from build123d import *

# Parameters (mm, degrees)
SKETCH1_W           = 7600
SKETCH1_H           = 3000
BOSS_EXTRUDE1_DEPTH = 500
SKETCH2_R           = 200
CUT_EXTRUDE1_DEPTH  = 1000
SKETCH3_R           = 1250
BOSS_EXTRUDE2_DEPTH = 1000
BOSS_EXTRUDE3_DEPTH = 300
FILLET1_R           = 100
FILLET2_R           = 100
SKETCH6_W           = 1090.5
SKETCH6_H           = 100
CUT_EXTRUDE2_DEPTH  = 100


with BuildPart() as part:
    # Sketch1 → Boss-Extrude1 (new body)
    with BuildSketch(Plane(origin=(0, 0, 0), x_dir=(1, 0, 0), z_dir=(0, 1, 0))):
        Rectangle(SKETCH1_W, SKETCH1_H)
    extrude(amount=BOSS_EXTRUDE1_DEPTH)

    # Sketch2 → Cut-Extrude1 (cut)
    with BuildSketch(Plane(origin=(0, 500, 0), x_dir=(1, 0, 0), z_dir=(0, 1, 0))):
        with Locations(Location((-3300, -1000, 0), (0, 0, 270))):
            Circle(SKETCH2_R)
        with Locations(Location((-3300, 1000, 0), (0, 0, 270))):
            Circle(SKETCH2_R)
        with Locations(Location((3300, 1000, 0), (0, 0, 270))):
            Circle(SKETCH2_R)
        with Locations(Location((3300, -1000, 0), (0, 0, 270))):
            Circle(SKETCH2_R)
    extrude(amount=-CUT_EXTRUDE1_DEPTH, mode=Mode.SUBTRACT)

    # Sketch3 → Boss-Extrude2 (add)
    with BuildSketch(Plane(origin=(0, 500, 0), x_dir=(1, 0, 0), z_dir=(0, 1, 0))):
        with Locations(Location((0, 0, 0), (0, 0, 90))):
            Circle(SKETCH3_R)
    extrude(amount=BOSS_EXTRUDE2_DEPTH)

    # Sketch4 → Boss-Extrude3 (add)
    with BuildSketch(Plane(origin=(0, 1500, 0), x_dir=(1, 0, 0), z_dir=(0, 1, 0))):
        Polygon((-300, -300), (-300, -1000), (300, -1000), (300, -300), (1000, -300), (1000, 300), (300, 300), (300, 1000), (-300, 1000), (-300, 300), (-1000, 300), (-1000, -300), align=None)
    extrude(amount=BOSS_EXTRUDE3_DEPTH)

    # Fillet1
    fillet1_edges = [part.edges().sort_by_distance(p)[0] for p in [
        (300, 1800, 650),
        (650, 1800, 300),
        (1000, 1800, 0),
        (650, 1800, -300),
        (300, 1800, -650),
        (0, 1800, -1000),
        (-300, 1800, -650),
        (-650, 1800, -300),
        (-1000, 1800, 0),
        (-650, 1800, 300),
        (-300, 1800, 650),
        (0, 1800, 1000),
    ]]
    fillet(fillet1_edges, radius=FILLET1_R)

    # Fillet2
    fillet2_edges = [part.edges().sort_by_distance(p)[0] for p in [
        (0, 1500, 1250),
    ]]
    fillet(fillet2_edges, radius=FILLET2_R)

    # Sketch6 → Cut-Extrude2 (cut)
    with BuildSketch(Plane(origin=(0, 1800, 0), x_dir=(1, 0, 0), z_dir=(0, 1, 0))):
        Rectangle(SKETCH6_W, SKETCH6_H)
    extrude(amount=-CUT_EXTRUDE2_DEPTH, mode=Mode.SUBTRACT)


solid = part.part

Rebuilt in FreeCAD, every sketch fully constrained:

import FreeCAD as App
import Part
import Sketcher

V = App.Vector
Q = App.Units.Quantity


def edges_at(feature, points):
    """Names of the edges that pass closest to the given points."""
    edges = feature.Shape.Edges
    near = lambda p: min(range(len(edges)), key=lambda i: edges[i].distToShape(Part.Vertex(*p))[0])
    return sorted({f"Edge{near(p) + 1}" for p in points})


def add_polygon(sketch, points):
    """Adds a closed chain of lines whose ends are joined by coincident constraints."""
    first, n = sketch.GeometryCount, len(points)
    for a, b in zip(points, points[1:] + points[:1]):
        sketch.addGeometry(Part.LineSegment(App.Vector(*a, 0), App.Vector(*b, 0)), False)
    for i in range(n):
        sketch.addConstraint(Sketcher.Constraint("Coincident", first + i, 2, first + (i + 1) % n, 1))

doc = App.newDocument("Part")
body = doc.addObject("PartDesign::Body", "Body")

sketch1 = body.newObject("Sketcher::SketchObject", "Sketch")
sketch1.AttachmentSupport = (doc.getObject("XZ_Plane"), [""])
sketch1.MapMode = "FlatFace"
add_polygon(sketch1, [(-3800, -1500), (-3800, 1500), (3800, 1500), (3800, -1500)])
sketch1.addConstraint(Sketcher.Constraint("Vertical", 0))
sketch1.addConstraint(Sketcher.Constraint("Horizontal", 1))
sketch1.addConstraint(Sketcher.Constraint("Vertical", 2))
sketch1.addConstraint(Sketcher.Constraint("Horizontal", 3))
sketch1.addConstraint(Sketcher.Constraint("Symmetric", 0, 2, 2, 2, -1, 1))
sketch1.addConstraint(Sketcher.Constraint("DistanceX", 1, 1, 1, 2, Q("7600 mm")))
sketch1.addConstraint(Sketcher.Constraint("DistanceY", 0, 1, 0, 2, Q("3000 mm")))
pad1 = body.newObject("PartDesign::Pad", "Pad")
pad1.Profile = sketch1
pad1.Length = 500
pad1.Reversed = True

sketch2 = body.newObject("Sketcher::SketchObject", "Sketch001")
sketch2.AttachmentSupport = (doc.getObject("XZ_Plane"), [""])
sketch2.MapMode = "FlatFace"
sketch2.AttachmentOffset = App.Placement(V(0, 0, -500), App.Rotation())
sketch2.addGeometry(Part.Circle(V(-3300, 1000, 0), V(0, 0, 1), 200), False)
sketch2.addGeometry(Part.Circle(V(-3300, -1000, 0), V(0, 0, 1), 200), False)
sketch2.addGeometry(Part.Circle(V(3300, -1000, 0), V(0, 0, 1), 200), False)
sketch2.addGeometry(Part.Circle(V(3300, 1000, 0), V(0, 0, 1), 200), False)
sketch2.addConstraint(Sketcher.Constraint("Equal", 0, 1))
sketch2.addConstraint(Sketcher.Constraint("Equal", 1, 2))
sketch2.addConstraint(Sketcher.Constraint("Equal", 2, 3))
sketch2.addConstraint(Sketcher.Constraint("Symmetric", 0, 3, 2, 3, -1, 1))
sketch2.addConstraint(Sketcher.Constraint("Symmetric", 1, 3, 3, 3, -1, 1))
sketch2.addConstraint(Sketcher.Constraint("Symmetric", 1, 3, 2, 3, -2))
sketch2.addConstraint(Sketcher.Constraint("Diameter", 0, Q("400 mm")))
sketch2.addConstraint(Sketcher.Constraint("DistanceX", 0, 3, -1, 1, Q("3300 mm")))
sketch2.addConstraint(Sketcher.Constraint("DistanceY", -1, 1, 0, 3, Q("1000 mm")))
pocket1 = body.newObject("PartDesign::Pocket", "Pocket")
pocket1.Profile = sketch2
pocket1.Length = 1000
pocket1.Reversed = True

sketch3 = body.newObject("Sketcher::SketchObject", "Sketch002")
sketch3.AttachmentSupport = (doc.getObject("XZ_Plane"), [""])
sketch3.MapMode = "FlatFace"
sketch3.AttachmentOffset = App.Placement(V(0, 0, -500), App.Rotation())
sketch3.addGeometry(Part.Circle(V(0, 0, 0), V(0, 0, 1), 1250), False)
sketch3.addConstraint(Sketcher.Constraint("Coincident", 0, 3, -1, 1))
sketch3.addConstraint(Sketcher.Constraint("Diameter", 0, Q("2500 mm")))
pad2 = body.newObject("PartDesign::Pad", "Pad001")
pad2.Profile = sketch3
pad2.Length = 1000
pad2.Reversed = True

sketch4 = body.newObject("Sketcher::SketchObject", "Sketch003")
sketch4.AttachmentSupport = (doc.getObject("XZ_Plane"), [""])
sketch4.MapMode = "FlatFace"
sketch4.AttachmentOffset = App.Placement(V(0, 0, -1500), App.Rotation())
add_polygon(sketch4, [(-300, 300), (-300, 1000), (300, 1000), (300, 300), (1000, 300), (1000, -300), (300, -300), (300, -1000), (-300, -1000), (-300, -300), (-1000, -300), (-1000, 300)])
sketch4.addConstraint(Sketcher.Constraint("Vertical", 0))
sketch4.addConstraint(Sketcher.Constraint("Horizontal", 1))
sketch4.addConstraint(Sketcher.Constraint("Vertical", 2))
sketch4.addConstraint(Sketcher.Constraint("Horizontal", 3))
sketch4.addConstraint(Sketcher.Constraint("Vertical", 4))
sketch4.addConstraint(Sketcher.Constraint("Horizontal", 5))
sketch4.addConstraint(Sketcher.Constraint("Vertical", 6))
sketch4.addConstraint(Sketcher.Constraint("Horizontal", 7))
sketch4.addConstraint(Sketcher.Constraint("Vertical", 8))
sketch4.addConstraint(Sketcher.Constraint("Horizontal", 9))
sketch4.addConstraint(Sketcher.Constraint("Vertical", 10))
sketch4.addConstraint(Sketcher.Constraint("Horizontal", 11))
sketch4.addConstraint(Sketcher.Constraint("Symmetric", 0, 2, 6, 2, -1, 1))
sketch4.addConstraint(Sketcher.Constraint("Symmetric", 2, 2, 8, 2, -1, 1))
sketch4.addConstraint(Sketcher.Constraint("Symmetric", 4, 2, 10, 2, -1, 1))
sketch4.addConstraint(Sketcher.Constraint("Symmetric", 5, 2, 8, 2, -2))
sketch4.addConstraint(Sketcher.Constraint("Equal", 11, 0))
sketch4.addConstraint(Sketcher.Constraint("Equal", 7, 4))
sketch4.addConstraint(Sketcher.Constraint("DistanceX", 1, 1, 1, 2, Q("600 mm")))
sketch4.addConstraint(Sketcher.Constraint("DistanceX", 3, 1, 3, 2, Q("700 mm")))
pad3 = body.newObject("PartDesign::Pad", "Pad002")
pad3.Profile = sketch4
pad3.Length = 300
pad3.Reversed = True
doc.recompute()

fillet = body.newObject("PartDesign::Fillet", "Fillet")
fillet.Base = (pad3, edges_at(pad3, [
    (300, 1800, 650),
    (650, 1800, 300),
    (1000, 1800, 0),
    (650, 1800, -300),
    (300, 1800, -650),
    (0, 1800, -1000),
    (-300, 1800, -650),
    (-650, 1800, -300),
    (-1000, 1800, 0),
    (-650, 1800, 300),
    (-300, 1800, 650),
    (0, 1800, 1000),
]))
fillet.Radius = 100
doc.recompute()

fillet2 = body.newObject("PartDesign::Fillet", "Fillet001")
fillet2.Base = (fillet, edges_at(fillet, [(0, 1500, 1250)]))
fillet2.Radius = 100

sketch5 = body.newObject("Sketcher::SketchObject", "Sketch004")
sketch5.AttachmentSupport = (doc.getObject("XZ_Plane"), [""])
sketch5.MapMode = "FlatFace"
sketch5.AttachmentOffset = App.Placement(V(0, 0, -1800), App.Rotation())
add_polygon(sketch5, [(-545.25, -50), (-545.25, 50), (545.25, 50), (545.25, -50)])
sketch5.addConstraint(Sketcher.Constraint("Vertical", 0))
sketch5.addConstraint(Sketcher.Constraint("Horizontal", 1))
sketch5.addConstraint(Sketcher.Constraint("Vertical", 2))
sketch5.addConstraint(Sketcher.Constraint("Horizontal", 3))
sketch5.addConstraint(Sketcher.Constraint("Symmetric", 0, 2, 2, 2, -1, 1))
sketch5.addConstraint(Sketcher.Constraint("DistanceY", 0, 1, 0, 2, Q("100 mm")))
sketch5.addConstraint(Sketcher.Constraint("DistanceX", 1, 1, 1, 2, Q("1090.5 mm")))
pocket2 = body.newObject("PartDesign::Pocket", "Pocket001")
pocket2.Profile = sketch5
pocket2.Length = 100
pocket2.Reversed = True

doc.recompute()
